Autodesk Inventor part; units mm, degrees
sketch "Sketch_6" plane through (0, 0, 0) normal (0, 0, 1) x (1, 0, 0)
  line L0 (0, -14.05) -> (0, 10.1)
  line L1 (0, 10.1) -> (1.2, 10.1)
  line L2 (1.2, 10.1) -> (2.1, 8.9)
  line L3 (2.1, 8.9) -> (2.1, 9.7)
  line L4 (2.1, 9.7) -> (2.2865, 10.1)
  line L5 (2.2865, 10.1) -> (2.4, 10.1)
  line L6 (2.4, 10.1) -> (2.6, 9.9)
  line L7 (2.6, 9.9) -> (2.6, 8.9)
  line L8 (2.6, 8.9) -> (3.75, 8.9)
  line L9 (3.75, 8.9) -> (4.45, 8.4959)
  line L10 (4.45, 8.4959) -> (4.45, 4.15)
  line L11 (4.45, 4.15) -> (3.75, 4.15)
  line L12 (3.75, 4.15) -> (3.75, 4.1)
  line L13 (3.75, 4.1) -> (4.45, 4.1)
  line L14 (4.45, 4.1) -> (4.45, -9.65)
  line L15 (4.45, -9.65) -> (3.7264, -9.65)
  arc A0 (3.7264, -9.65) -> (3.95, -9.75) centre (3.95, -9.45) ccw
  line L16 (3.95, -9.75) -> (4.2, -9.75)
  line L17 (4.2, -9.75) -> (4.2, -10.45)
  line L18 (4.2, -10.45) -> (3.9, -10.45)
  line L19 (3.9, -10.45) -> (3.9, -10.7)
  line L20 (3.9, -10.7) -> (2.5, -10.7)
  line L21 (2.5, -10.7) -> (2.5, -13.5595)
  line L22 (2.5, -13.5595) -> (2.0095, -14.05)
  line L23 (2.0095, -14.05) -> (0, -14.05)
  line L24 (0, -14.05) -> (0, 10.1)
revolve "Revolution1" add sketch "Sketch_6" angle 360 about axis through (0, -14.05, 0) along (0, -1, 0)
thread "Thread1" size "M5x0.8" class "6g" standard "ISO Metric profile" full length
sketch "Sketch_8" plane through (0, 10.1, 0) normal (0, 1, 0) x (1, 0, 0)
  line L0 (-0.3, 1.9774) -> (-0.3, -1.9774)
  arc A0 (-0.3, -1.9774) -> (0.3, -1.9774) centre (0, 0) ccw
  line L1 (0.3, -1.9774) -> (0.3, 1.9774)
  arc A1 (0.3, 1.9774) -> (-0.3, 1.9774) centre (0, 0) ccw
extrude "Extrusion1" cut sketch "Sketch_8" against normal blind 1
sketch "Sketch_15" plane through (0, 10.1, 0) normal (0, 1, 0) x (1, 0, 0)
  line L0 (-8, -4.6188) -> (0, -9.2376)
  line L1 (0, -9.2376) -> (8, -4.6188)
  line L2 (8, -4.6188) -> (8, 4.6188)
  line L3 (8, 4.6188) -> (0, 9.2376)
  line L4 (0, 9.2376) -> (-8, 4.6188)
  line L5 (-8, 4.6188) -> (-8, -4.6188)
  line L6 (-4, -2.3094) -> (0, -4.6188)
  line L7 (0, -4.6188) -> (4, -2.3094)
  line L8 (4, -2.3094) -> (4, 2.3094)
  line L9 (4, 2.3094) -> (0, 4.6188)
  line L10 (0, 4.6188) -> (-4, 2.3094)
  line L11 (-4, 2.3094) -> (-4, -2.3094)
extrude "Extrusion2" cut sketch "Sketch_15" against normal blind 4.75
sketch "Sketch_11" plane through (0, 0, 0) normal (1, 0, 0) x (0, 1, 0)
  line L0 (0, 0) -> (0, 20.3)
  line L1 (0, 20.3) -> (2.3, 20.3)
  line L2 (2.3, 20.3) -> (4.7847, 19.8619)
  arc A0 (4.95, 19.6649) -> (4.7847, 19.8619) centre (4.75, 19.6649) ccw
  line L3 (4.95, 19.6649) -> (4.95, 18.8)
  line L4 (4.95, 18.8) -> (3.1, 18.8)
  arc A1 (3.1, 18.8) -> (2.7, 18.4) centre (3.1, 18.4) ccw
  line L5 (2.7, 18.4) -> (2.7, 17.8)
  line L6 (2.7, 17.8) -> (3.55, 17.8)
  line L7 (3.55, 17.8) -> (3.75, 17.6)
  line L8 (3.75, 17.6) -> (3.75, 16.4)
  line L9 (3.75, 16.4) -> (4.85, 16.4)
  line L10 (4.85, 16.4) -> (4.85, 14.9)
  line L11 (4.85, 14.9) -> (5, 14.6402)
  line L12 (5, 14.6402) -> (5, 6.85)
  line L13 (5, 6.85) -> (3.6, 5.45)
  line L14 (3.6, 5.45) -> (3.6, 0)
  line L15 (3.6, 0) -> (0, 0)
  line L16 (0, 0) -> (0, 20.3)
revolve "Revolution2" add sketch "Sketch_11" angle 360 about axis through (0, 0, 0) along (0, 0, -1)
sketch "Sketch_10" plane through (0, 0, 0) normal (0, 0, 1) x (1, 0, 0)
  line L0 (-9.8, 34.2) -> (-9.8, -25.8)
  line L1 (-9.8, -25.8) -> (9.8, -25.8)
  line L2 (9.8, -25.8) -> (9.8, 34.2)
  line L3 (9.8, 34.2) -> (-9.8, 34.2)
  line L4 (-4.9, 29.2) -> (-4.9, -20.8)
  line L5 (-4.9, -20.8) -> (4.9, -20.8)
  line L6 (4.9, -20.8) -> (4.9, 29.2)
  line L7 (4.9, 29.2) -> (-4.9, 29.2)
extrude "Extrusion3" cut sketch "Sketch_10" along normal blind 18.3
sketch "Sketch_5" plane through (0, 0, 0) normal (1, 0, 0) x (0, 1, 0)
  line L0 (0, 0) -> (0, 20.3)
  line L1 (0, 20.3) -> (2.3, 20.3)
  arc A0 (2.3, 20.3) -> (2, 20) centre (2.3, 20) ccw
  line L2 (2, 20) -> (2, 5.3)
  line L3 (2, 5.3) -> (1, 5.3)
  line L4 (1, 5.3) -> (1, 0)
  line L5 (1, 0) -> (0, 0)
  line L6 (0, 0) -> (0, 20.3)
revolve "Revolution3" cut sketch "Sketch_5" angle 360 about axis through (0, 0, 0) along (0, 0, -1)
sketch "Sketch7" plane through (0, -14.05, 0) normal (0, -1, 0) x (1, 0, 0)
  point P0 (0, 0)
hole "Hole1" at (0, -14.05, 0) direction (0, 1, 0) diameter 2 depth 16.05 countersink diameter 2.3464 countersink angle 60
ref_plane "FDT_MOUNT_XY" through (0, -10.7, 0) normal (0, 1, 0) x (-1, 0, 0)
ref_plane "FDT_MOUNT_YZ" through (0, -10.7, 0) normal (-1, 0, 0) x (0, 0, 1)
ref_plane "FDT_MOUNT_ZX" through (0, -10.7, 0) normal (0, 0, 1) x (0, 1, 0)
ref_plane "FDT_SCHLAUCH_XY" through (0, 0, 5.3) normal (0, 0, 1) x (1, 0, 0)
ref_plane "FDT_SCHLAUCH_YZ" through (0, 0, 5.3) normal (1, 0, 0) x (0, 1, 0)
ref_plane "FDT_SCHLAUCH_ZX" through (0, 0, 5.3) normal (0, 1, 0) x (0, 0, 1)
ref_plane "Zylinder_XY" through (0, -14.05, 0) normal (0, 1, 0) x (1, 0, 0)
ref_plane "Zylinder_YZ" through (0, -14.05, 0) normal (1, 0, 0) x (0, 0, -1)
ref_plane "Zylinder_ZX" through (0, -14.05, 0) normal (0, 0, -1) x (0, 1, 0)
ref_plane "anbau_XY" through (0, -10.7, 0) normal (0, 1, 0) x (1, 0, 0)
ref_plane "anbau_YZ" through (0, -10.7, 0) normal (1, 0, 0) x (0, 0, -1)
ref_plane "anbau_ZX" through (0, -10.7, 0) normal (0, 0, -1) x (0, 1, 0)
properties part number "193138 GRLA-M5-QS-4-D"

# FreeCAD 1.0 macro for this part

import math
import FreeCAD as App
import Part
import Sketcher
from FreeCAD import Vector
Q = App.Units.Quantity

doc = App.newDocument("Part")
params = doc.addObject("Spreadsheet::Sheet", "Params")
for row, (alias, value) in enumerate([
    ("sketch1_radius", "0.3 mm"),
    ("sketch1_height", "1 mm"),
    ("sketch1_width", "1.4 mm"),
    ("sketch1_width2", "0.3 mm"),
    ("sketch1_width3", "0.7 mm"),
    ("revolution_angle", "360 deg"),
    ("sketch2_radius", "2 mm"),
    ("pocket1_length", "1 mm"),
    ("pocket2_length", "4.75 mm"),
    ("sketch4_radius", "0.4 mm"),
    ("sketch4_radius2", "0.2 mm"),
    ("sketch4_width", "3.6 mm"),
    ("sketch4_width2", "1.1 mm"),
    ("sketch4_width3", "2.3 mm"),
    ("revolution2_angle", "360 deg"),
    ("sketch5_height", "60 mm"),
    ("sketch5_height2", "50 mm"),
    ("sketch5_width", "19.6 mm"),
    ("sketch5_width2", "9.8 mm"),
    ("pocket3_length", "18.3 mm"),
    ("sketch6_radius", "0.3 mm"),
    ("sketch6_width", "1 mm"),
    ("sketch6_height", "20.3 mm"),
    ("sketch6_height2", "5.3 mm"),
    ("groove_angle", "360 deg"),
    ("sketch7_diameter", "2 mm"),
    ("hole_diameter", "2 mm"),
    ("hole_depth", "16.05 mm"),
    ("hole_csink_diameter", "2.3464 mm"),
], start=1):
    params.set(f"A{row}", alias)
    params.set(f"B{row}", "=" + value)
    params.setAlias(f"B{row}", alias)

body = doc.addObject("PartDesign::Body", "Body")

# Sketch on XY plane
sketch1 = doc.addObject("Sketcher::SketchObject", "Sketch")
body.addObject(sketch1)
sketch1.AttachmentSupport = (doc.XY_Plane, [""])
sketch1.MapMode = "FlatFace"
sketch1.addGeometry(Part.LineSegment(Vector(0, 10.1, 0), Vector(0, -14.05, 0)), False)
sketch1.addGeometry(Part.LineSegment(Vector(0, -14.05, 0), Vector(2.01, -14.05, 0)), False)
sketch1.addGeometry(Part.LineSegment(Vector(2.01, -14.05, 0), Vector(2.5, -13.56, 0)), False)
sketch1.addGeometry(Part.LineSegment(Vector(2.5, -13.56, 0), Vector(2.5, -10.7, 0)), False)
sketch1.addGeometry(Part.LineSegment(Vector(2.5, -10.7, 0), Vector(3.9, -10.7, 0)), False)
sketch1.addGeometry(Part.LineSegment(Vector(3.9, -10.7, 0), Vector(3.9, -10.45, 0)), False)
sketch1.addGeometry(Part.LineSegment(Vector(3.9, -10.45, 0), Vector(4.2, -10.45, 0)), False)
sketch1.addGeometry(Part.LineSegment(Vector(4.2, -10.45, 0), Vector(4.2, -9.75, 0)), False)
sketch1.addGeometry(Part.LineSegment(Vector(4.2, -9.75, 0), Vector(3.95, -9.75, 0)), False)
sketch1.addGeometry(Part.ArcOfCircle(Part.Circle(Vector(3.95, -9.45, 0), Vector(0, 0, 1), 0.3), math.radians(-138), math.radians(-90)), False)
sketch1.addGeometry(Part.LineSegment(Vector(3.73, -9.65, 0), Vector(4.45, -9.65, 0)), False)
sketch1.addGeometry(Part.LineSegment(Vector(4.45, -9.65, 0), Vector(4.45, 4.1, 0)), False)
sketch1.addGeometry(Part.LineSegment(Vector(4.45, 4.1, 0), Vector(3.75, 4.1, 0)), False)
sketch1.addGeometry(Part.LineSegment(Vector(3.75, 4.1, 0), Vector(3.75, 4.15, 0)), False)
sketch1.addGeometry(Part.LineSegment(Vector(3.75, 4.15, 0), Vector(4.45, 4.15, 0)), False)
sketch1.addGeometry(Part.LineSegment(Vector(4.45, 4.15, 0), Vector(4.45, 8.5, 0)), False)
sketch1.addGeometry(Part.LineSegment(Vector(4.45, 8.5, 0), Vector(3.75, 8.9, 0)), False)
sketch1.addGeometry(Part.LineSegment(Vector(3.75, 8.9, 0), Vector(2.6, 8.9, 0)), False)
sketch1.addGeometry(Part.LineSegment(Vector(2.6, 8.9, 0), Vector(2.6, 9.9, 0)), False)
sketch1.addGeometry(Part.LineSegment(Vector(2.6, 9.9, 0), Vector(2.4, 10.1, 0)), False)
sketch1.addGeometry(Part.LineSegment(Vector(2.4, 10.1, 0), Vector(2.29, 10.1, 0)), False)
sketch1.addGeometry(Part.LineSegment(Vector(2.29, 10.1, 0), Vector(2.1, 9.7, 0)), False)
sketch1.addGeometry(Part.LineSegment(Vector(2.1, 9.7, 0), Vector(2.1, 8.9, 0)), False)
sketch1.addGeometry(Part.LineSegment(Vector(2.1, 8.9, 0), Vector(1.2, 10.1, 0)), False)
sketch1.addGeometry(Part.LineSegment(Vector(1.2, 10.1, 0), Vector(0, 10.1, 0)), False)
sketch1.addConstraint(Sketcher.Constraint("Coincident", 0, 2, 1, 1))
sketch1.addConstraint(Sketcher.Constraint("Coincident", 1, 2, 2, 1))
sketch1.addConstraint(Sketcher.Constraint("Coincident", 2, 2, 3, 1))
sketch1.addConstraint(Sketcher.Constraint("Coincident", 3, 2, 4, 1))
sketch1.addConstraint(Sketcher.Constraint("Coincident", 4, 2, 5, 1))
sketch1.addConstraint(Sketcher.Constraint("Coincident", 5, 2, 6, 1))
sketch1.addConstraint(Sketcher.Constraint("Coincident", 6, 2, 7, 1))
sketch1.addConstraint(Sketcher.Constraint("Coincident", 7, 2, 8, 1))
sketch1.addConstraint(Sketcher.Constraint("Tangent", 8, 2, 9, 2))
sketch1.addConstraint(Sketcher.Constraint("Coincident", 9, 1, 10, 1))
sketch1.addConstraint(Sketcher.Constraint("Coincident", 10, 2, 11, 1))
sketch1.addConstraint(Sketcher.Constraint("Coincident", 11, 2, 12, 1))
sketch1.addConstraint(Sketcher.Constraint("Coincident", 12, 2, 13, 1))
sketch1.addConstraint(Sketcher.Constraint("Coincident", 13, 2, 14, 1))
sketch1.addConstraint(Sketcher.Constraint("Coincident", 14, 2, 15, 1))
sketch1.addConstraint(Sketcher.Constraint("Coincident", 15, 2, 16, 1))
sketch1.addConstraint(Sketcher.Constraint("Coincident", 16, 2, 17, 1))
sketch1.addConstraint(Sketcher.Constraint("Coincident", 17, 2, 18, 1))
sketch1.addConstraint(Sketcher.Constraint("Coincident", 18, 2, 19, 1))
sketch1.addConstraint(Sketcher.Constraint("Coincident", 19, 2, 20, 1))
sketch1.addConstraint(Sketcher.Constraint("Coincident", 20, 2, 21, 1))
sketch1.addConstraint(Sketcher.Constraint("Coincident", 21, 2, 22, 1))
sketch1.addConstraint(Sketcher.Constraint("Coincident", 22, 2, 23, 1))
sketch1.addConstraint(Sketcher.Constraint("Coincident", 23, 2, 24, 1))
sketch1.addConstraint(Sketcher.Constraint("Coincident", 24, 2, 0, 1))
sketch1.addConstraint(Sketcher.Constraint("Vertical", 0))
sketch1.addConstraint(Sketcher.Constraint("Horizontal", 1))
sketch1.addConstraint(Sketcher.Constraint("Vertical", 3))
sketch1.addConstraint(Sketcher.Constraint("Horizontal", 4))
sketch1.addConstraint(Sketcher.Constraint("Vertical", 5))
sketch1.addConstraint(Sketcher.Constraint("Horizontal", 6))
sketch1.addConstraint(Sketcher.Constraint("Vertical", 7))
sketch1.addConstraint(Sketcher.Constraint("Horizontal", 8))
sketch1.addConstraint(Sketcher.Constraint("Horizontal", 10))
sketch1.addConstraint(Sketcher.Constraint("Vertical", 11))
sketch1.addConstraint(Sketcher.Constraint("Horizontal", 12))
sketch1.addConstraint(Sketcher.Constraint("Vertical", 13))
sketch1.addConstraint(Sketcher.Constraint("Horizontal", 14))
sketch1.addConstraint(Sketcher.Constraint("Vertical", 15))
sketch1.addConstraint(Sketcher.Constraint("Horizontal", 17))
sketch1.addConstraint(Sketcher.Constraint("Vertical", 18))
sketch1.addConstraint(Sketcher.Constraint("Horizontal", 20))
sketch1.addConstraint(Sketcher.Constraint("Vertical", 22))
sketch1.addConstraint(Sketcher.Constraint("Horizontal", 24))
sketch1.addConstraint(Sketcher.Constraint("PointOnObject", 0, 2, -2))
sketch1.addConstraint(Sketcher.Constraint("Perpendicular", 2, 19))
sketch1.addConstraint(Sketcher.Constraint("Horizontal", 17, 2, 22, 2))
sketch1.addConstraint(Sketcher.Constraint("Horizontal", 20, 2, 23, 2))
sketch1.addConstraint(Sketcher.Constraint("Vertical", 11, 2, 14, 2))
sketch1.addConstraint(Sketcher.Constraint("Vertical", 13, 2, 16, 2))
sketch1.addConstraint(Sketcher.Constraint("Equal", 8, 5))
sketch1.addConstraint(Sketcher.Constraint("Equal", 14, 7))
sketch1.addConstraint(Sketcher.Constraint("Radius", 9, 0.3))
sketch1.addConstraint(Sketcher.Constraint("DistanceY", 18, 1, 18, 2, 1.0))
sketch1.addConstraint(Sketcher.Constraint("Angle", 2, Q("45 deg")))
sketch1.addConstraint(Sketcher.Constraint("DistanceX", 4, 1, 4, 2, 1.4))
sketch1.addConstraint(Sketcher.Constraint("DistanceX", 6, 1, 6, 2, 0.3))
sketch1.addConstraint(Sketcher.Constraint("DistanceX", 12, 2, 12, 1, 0.7))
sketch1.addConstraint(Sketcher.Constraint("DistanceX", 24, 2, 24, 1, 1.2))
sketch1.addConstraint(Sketcher.Constraint("DistanceY", 22, 2, 22, 1, 0.8))
sketch1.addConstraint(Sketcher.Constraint("Distance", 23, 1.5))
sketch1.addConstraint(Sketcher.Constraint("DistanceX", 8, 2, 8, 1, 0.25))
sketch1.addConstraint(Sketcher.Constraint("DistanceX", 17, 2, 17, 1, 1.15))
sketch1.addConstraint(Sketcher.Constraint("DistanceY", 0, 2, 0, 1, 24.15))
sketch1.addConstraint(Sketcher.Constraint("DistanceY", 11, 1, 11, 2, 13.75))
sketch1.addConstraint(Sketcher.Constraint("DistanceY", 13, 1, 13, 2, 0.05))
sketch1.addConstraint(Sketcher.Constraint("DistanceX", -1, 1, 2, 2, 2.5))
sketch1.addConstraint(Sketcher.Constraint("DistanceY", 3, 2, -1, 1, 10.7))
sketch1.addConstraint(Sketcher.Constraint("DistanceY", -1, 1, 11, 2, 4.1))
sketch1.addConstraint(Sketcher.Constraint("DistanceY", -1, 1, 16, 2, 8.9))
sketch1.addConstraint(Sketcher.Constraint("DistanceX", -1, 1, 17, 2, 2.6))
sketch1.addConstraint(Sketcher.Constraint("DistanceX", -1, 1, 19, 2, 2.4))
sketch1.addConstraint(Sketcher.Constraint("DistanceY", 15, 1, 15, 2, 4.346))
sketch1.addConstraint(Sketcher.Constraint("DistanceX", 1, 1, 1, 2, 2.0095))
sketch1.addConstraint(Sketcher.Constraint("DistanceX", 20, 2, 20, 1, 0.1135))
sketch1.setExpression("Constraints[52]", "Params.sketch1_radius")
sketch1.setExpression("Constraints[53]", "Params.sketch1_height")
sketch1.setExpression("Constraints[55]", "Params.sketch1_width")
sketch1.setExpression("Constraints[56]", "Params.sketch1_width2")
sketch1.setExpression("Constraints[57]", "Params.sketch1_width3")
revolution = doc.addObject("PartDesign::Revolution", "Revolution")
body.addObject(revolution)
revolution.Profile = sketch1
revolution.ReferenceAxis = (sketch1, ["V_Axis"])
revolution.setExpression("Angle", "Params.revolution_angle")

# Sketch on XZ plane
sketch2 = doc.addObject("Sketcher::SketchObject", "Sketch001")
body.addObject(sketch2)
sketch2.AttachmentSupport = (doc.XZ_Plane, [""])
sketch2.MapMode = "FlatFace"
sketch2.AttachmentOffset = App.Placement(Vector(0, 0, -10.1), App.Rotation())
sketch2.addGeometry(Part.ArcOfCircle(Part.Circle(Vector(0, 0, 0), Vector(0, 0, 1), 2), math.radians(-98.63), math.radians(-81.37)), False)
sketch2.addGeometry(Part.LineSegment(Vector(-0.3, -2, 0), Vector(-0.3, 2, 0)), False)
sketch2.addGeometry(Part.ArcOfCircle(Part.Circle(Vector(0, 0, 0), Vector(0, 0, 1), 2), math.radians(81.37), math.radians(98.63)), False)
sketch2.addGeometry(Part.LineSegment(Vector(0.3, 2, 0), Vector(0.3, -2, 0)), False)
sketch2.addConstraint(Sketcher.Constraint("Coincident", 0, 1, 1, 1))
sketch2.addConstraint(Sketcher.Constraint("Coincident", 1, 2, 2, 2))
sketch2.addConstraint(Sketcher.Constraint("Coincident", 2, 1, 3, 1))
sketch2.addConstraint(Sketcher.Constraint("Coincident", 3, 2, 0, 2))
sketch2.addConstraint(Sketcher.Constraint("Vertical", 1))
sketch2.addConstraint(Sketcher.Constraint("Vertical", 3))
sketch2.addConstraint(Sketcher.Constraint("Coincident", 0, 3, -1, 1))
sketch2.addConstraint(Sketcher.Constraint("Coincident", 2, 3, -1, 1))
sketch2.addConstraint(Sketcher.Constraint("Equal", 0, 2))
sketch2.addConstraint(Sketcher.Constraint("Horizontal", 1, 2, 2, 1))
sketch2.addConstraint(Sketcher.Constraint("Radius", 0, 2.0))
sketch2.addConstraint(Sketcher.Constraint("DistanceX", 0, 1, -1, 1, 0.3))
sketch2.setExpression("Constraints[10]", "Params.sketch2_radius")
pocket1 = doc.addObject("PartDesign::Pocket", "Pocket")
body.addObject(pocket1)
pocket1.Profile = sketch2
pocket1.setExpression("Length", "Params.pocket1_length")
pocket1.Reversed = True

# Sketch on XZ plane
sketch3 = doc.addObject("Sketcher::SketchObject", "Sketch002")
body.addObject(sketch3)
sketch3.AttachmentSupport = (doc.XZ_Plane, [""])
sketch3.MapMode = "FlatFace"
sketch3.AttachmentOffset = App.Placement(Vector(0, 0, -10.1), App.Rotation())
sketch3.addGeometry(Part.LineSegment(Vector(-8, -4.6, 0), Vector(-8, 4.6, 0)), False)
sketch3.addGeometry(Part.LineSegment(Vector(-8, 4.6, 0), Vector(0, 9.2, 0)), False)
sketch3.addGeometry(Part.LineSegment(Vector(0, 9.2, 0), Vector(8, 4.6, 0)), False)
sketch3.addGeometry(Part.LineSegment(Vector(8, 4.6, 0), Vector(8, -4.6, 0)), False)
sketch3.addGeometry(Part.LineSegment(Vector(8, -4.6, 0), Vector(0, -9.2, 0)), False)
sketch3.addGeometry(Part.LineSegment(Vector(0, -9.2, 0), Vector(-8, -4.6, 0)), False)
sketch3.addGeometry(Part.LineSegment(Vector(0, 4.6, 0), Vector(-4, 2.3, 0)), False)
sketch3.addGeometry(Part.LineSegment(Vector(-4, 2.3, 0), Vector(-4, -2.3, 0)), False)
sketch3.addGeometry(Part.LineSegment(Vector(-4, -2.3, 0), Vector(0, -4.6, 0)), False)
sketch3.addGeometry(Part.LineSegment(Vector(0, -4.6, 0), Vector(4, -2.3, 0)), False)
sketch3.addGeometry(Part.LineSegment(Vector(4, -2.3, 0), Vector(4, 2.3, 0)), False)
sketch3.addGeometry(Part.LineSegment(Vector(4, 2.3, 0), Vector(0, 4.6, 0)), False)
sketch3.addConstraint(Sketcher.Constraint("Coincident", 0, 2, 1, 1))
sketch3.addConstraint(Sketcher.Constraint("Coincident", 1, 2, 2, 1))
sketch3.addConstraint(Sketcher.Constraint("Coincident", 2, 2, 3, 1))
sketch3.addConstraint(Sketcher.Constraint("Coincident", 3, 2, 4, 1))
sketch3.addConstraint(Sketcher.Constraint("Coincident", 4, 2, 5, 1))
sketch3.addConstraint(Sketcher.Constraint("Coincident", 5, 2, 0, 1))
sketch3.addConstraint(Sketcher.Constraint("Coincident", 6, 2, 7, 1))
sketch3.addConstraint(Sketcher.Constraint("Coincident", 7, 2, 8, 1))
sketch3.addConstraint(Sketcher.Constraint("Coincident", 8, 2, 9, 1))
sketch3.addConstraint(Sketcher.Constraint("Coincident", 9, 2, 10, 1))
sketch3.addConstraint(Sketcher.Constraint("Coincident", 10, 2, 11, 1))
sketch3.addConstraint(Sketcher.Constraint("Coincident", 11, 2, 6, 1))
sketch3.addConstraint(Sketcher.Constraint("Vertical", 0))
sketch3.addConstraint(Sketcher.Constraint("Vertical", 3))
sketch3.addConstraint(Sketcher.Constraint("Vertical", 7))
sketch3.addConstraint(Sketcher.Constraint("Vertical", 10))
sketch3.addConstraint(Sketcher.Constraint("Symmetric", 0, 2, 3, 2, -1, 1))
sketch3.addConstraint(Sketcher.Constraint("Symmetric", 1, 2, 4, 2, -1, 1))
sketch3.addConstraint(Sketcher.Constraint("Symmetric", 6, 2, 9, 2, -1, 1))
sketch3.addConstraint(Sketcher.Constraint("Symmetric", 8, 2, 11, 2, -1, 1))
sketch3.addConstraint(Sketcher.Constraint("PointOnObject", 1, 2, -2))
sketch3.addConstraint(Sketcher.Constraint("PointOnObject", 8, 2, -2))
sketch3.addConstraint(Sketcher.Constraint("Parallel", 2, 5))
sketch3.addConstraint(Sketcher.Constraint("Parallel", 4, 6))
sketch3.addConstraint(Sketcher.Constraint("Parallel", 5, 8))
sketch3.addConstraint(Sketcher.Constraint("Parallel", 8, 11))
sketch3.addConstraint(Sketcher.Constraint("Horizontal", 0, 2, 2, 2))
sketch3.addConstraint(Sketcher.Constraint("Horizontal", 5, 2, 8, 2))
sketch3.addConstraint(Sketcher.Constraint("Angle", 1, Q("30 deg")))
sketch3.addConstraint(Sketcher.Constraint("DistanceX", 0, 2, -1, 1, 8.0))
sketch3.addConstraint(Sketcher.Constraint("DistanceX", 6, 2, -1, 1, 4.0))
sketch3.addConstraint(Sketcher.Constraint("DistanceY", 0, 1, 0, 2, 9.2376))
pocket2 = doc.addObject("PartDesign::Pocket", "Pocket001")
body.addObject(pocket2)
pocket2.Profile = sketch3
pocket2.setExpression("Length", "Params.pocket2_length")
pocket2.Reversed = True

# Sketch on YZ plane
sketch4 = doc.addObject("Sketcher::SketchObject", "Sketch003")
body.addObject(sketch4)
sketch4.AttachmentSupport = (doc.YZ_Plane, [""])
sketch4.MapMode = "FlatFace"
sketch4.addGeometry(Part.LineSegment(Vector(0, 20.3, 0), Vector(0, 0, 0)), False)
sketch4.addGeometry(Part.LineSegment(Vector(0, 0, 0), Vector(3.6, 0, 0)), False)
sketch4.addGeometry(Part.LineSegment(Vector(3.6, 0, 0), Vector(3.6, 5.45, 0)), False)
sketch4.addGeometry(Part.LineSegment(Vector(3.6, 5.45, 0), Vector(5, 6.85, 0)), False)
sketch4.addGeometry(Part.LineSegment(Vector(5, 6.85, 0), Vector(5, 14.64, 0)), False)
sketch4.addGeometry(Part.LineSegment(Vector(5, 14.64, 0), Vector(4.85, 14.9, 0)), False)
sketch4.addGeometry(Part.LineSegment(Vector(4.85, 14.9, 0), Vector(4.85, 16.4, 0)), False)
sketch4.addGeometry(Part.LineSegment(Vector(4.85, 16.4, 0), Vector(3.75, 16.4, 0)), False)
sketch4.addGeometry(Part.LineSegment(Vector(3.75, 16.4, 0), Vector(3.75, 17.6, 0)), False)
sketch4.addGeometry(Part.LineSegment(Vector(3.75, 17.6, 0), Vector(3.55, 17.8, 0)), False)
sketch4.addGeometry(Part.LineSegment(Vector(3.55, 17.8, 0), Vector(2.7, 17.8, 0)), False)
sketch4.addGeometry(Part.LineSegment(Vector(2.7, 17.8, 0), Vector(2.7, 18.4, 0)), False)
sketch4.addGeometry(Part.ArcOfCircle(Part.Circle(Vector(3.1, 18.4, 0), Vector(0, 0, 1), 0.4), math.radians(90), math.radians(180)), False)
sketch4.addGeometry(Part.LineSegment(Vector(3.1, 18.8, 0), Vector(4.95, 18.8, 0)), False)
sketch4.addGeometry(Part.LineSegment(Vector(4.95, 18.8, 0), Vector(4.95, 19.66, 0)), False)
sketch4.addGeometry(Part.ArcOfCircle(Part.Circle(Vector(4.75, 19.66, 0), Vector(0, 0, 1), 0.2), math.radians(0), math.radians(80)), False)
sketch4.addGeometry(Part.LineSegment(Vector(4.78, 19.86, 0), Vector(2.3, 20.3, 0)), False)
sketch4.addGeometry(Part.LineSegment(Vector(2.3, 20.3, 0), Vector(0, 20.3, 0)), False)
sketch4.addConstraint(Sketcher.Constraint("Coincident", 0, 2, 1, 1))
sketch4.addConstraint(Sketcher.Constraint("Coincident", 1, 2, 2, 1))
sketch4.addConstraint(Sketcher.Constraint("Coincident", 2, 2, 3, 1))
sketch4.addConstraint(Sketcher.Constraint("Coincident", 3, 2, 4, 1))
sketch4.addConstraint(Sketcher.Constraint("Coincident", 4, 2, 5, 1))
sketch4.addConstraint(Sketcher.Constraint("Coincident", 5, 2, 6, 1))
sketch4.addConstraint(Sketcher.Constraint("Coincident", 6, 2, 7, 1))
sketch4.addConstraint(Sketcher.Constraint("Coincident", 7, 2, 8, 1))
sketch4.addConstraint(Sketcher.Constraint("Coincident", 8, 2, 9, 1))
sketch4.addConstraint(Sketcher.Constraint("Coincident", 9, 2, 10, 1))
sketch4.addConstraint(Sketcher.Constraint("Coincident", 10, 2, 11, 1))
sketch4.addConstraint(Sketcher.Constraint("Tangent", 11, 2, 12, 2))
sketch4.addConstraint(Sketcher.Constraint("Tangent", 12, 1, 13, 1))
sketch4.addConstraint(Sketcher.Constraint("Coincident", 13, 2, 14, 1))
sketch4.addConstraint(Sketcher.Constraint("Tangent", 14, 2, 15, 1))
sketch4.addConstraint(Sketcher.Constraint("Tangent", 15, 2, 16, 1))
sketch4.addConstraint(Sketcher.Constraint("Coincident", 16, 2, 17, 1))
sketch4.addConstraint(Sketcher.Constraint("Coincident", 17, 2, 0, 1))
sketch4.addConstraint(Sketcher.Constraint("Vertical", 0))
sketch4.addConstraint(Sketcher.Constraint("Horizontal", 1))
sketch4.addConstraint(Sketcher.Constraint("Vertical", 2))
sketch4.addConstraint(Sketcher.Constraint("Vertical", 4))
sketch4.addConstraint(Sketcher.Constraint("Vertical", 6))
sketch4.addConstraint(Sketcher.Constraint("Horizontal", 7))
sketch4.addConstraint(Sketcher.Constraint("Vertical", 8))
sketch4.addConstraint(Sketcher.Constraint("Horizontal", 10))
sketch4.addConstraint(Sketcher.Constraint("Vertical", 11))
sketch4.addConstraint(Sketcher.Constraint("Horizontal", 13))
sketch4.addConstraint(Sketcher.Constraint("Vertical", 14))
sketch4.addConstraint(Sketcher.Constraint("Horizontal", 17))
sketch4.addConstraint(Sketcher.Constraint("Coincident", 0, 2, -1, 1))
sketch4.addConstraint(Sketcher.Constraint("Perpendicular", 3, 9))
sketch4.addConstraint(Sketcher.Constraint("Radius", 12, 0.4))
sketch4.addConstraint(Sketcher.Constraint("Radius", 15, 0.2))
sketch4.addConstraint(Sketcher.Constraint("Angle", 3, Q("45 deg")))
sketch4.addConstraint(Sketcher.Constraint("Angle", 5, Q("120.0007 deg")))
sketch4.addConstraint(Sketcher.Constraint("Angle", 16, Q("170.0004 deg")))
sketch4.addConstraint(Sketcher.Constraint("DistanceX", 1, 1, 1, 2, 3.6))
sketch4.addConstraint(Sketcher.Constraint("DistanceX", 7, 2, 7, 1, 1.1))
sketch4.addConstraint(Sketcher.Constraint("DistanceX", 17, 2, 17, 1, 2.3))
sketch4.addConstraint(Sketcher.Constraint("DistanceY", 0, 2, 0, 1, 20.3))
sketch4.addConstraint(Sketcher.Constraint("DistanceY", 6, 1, 6, 2, 1.5))
sketch4.addConstraint(Sketcher.Constraint("DistanceY", 8, 1, 8, 2, 1.2))
sketch4.addConstraint(Sketcher.Constraint("DistanceY", 11, 1, 11, 2, 0.6))
sketch4.addConstraint(Sketcher.Constraint("DistanceX", -1, 1, 3, 2, 5.0))
sketch4.addConstraint(Sketcher.Constraint("DistanceY", 6, 2, 12, 3, 2.0))
sketch4.addConstraint(Sketcher.Constraint("DistanceX", 7, 2, 15, 3, 1.0))
sketch4.addConstraint(Sketcher.Constraint("Distance", 5, 0.3))
sketch4.addConstraint(Sketcher.Constraint("DistanceX", 10, 2, 10, 1, 0.85))
sketch4.addConstraint(Sketcher.Constraint("DistanceY", 2, 1, 2, 2, 5.45))
sketch4.addConstraint(Sketcher.Constraint("DistanceY", -1, 1, 12, 3, 18.4))
sketch4.setExpression("Constraints[32]", "Params.sketch4_radius")
sketch4.setExpression("Constraints[33]", "Params.sketch4_radius2")
sketch4.setExpression("Constraints[37]", "Params.sketch4_width")
sketch4.setExpression("Constraints[38]", "Params.sketch4_width2")
sketch4.setExpression("Constraints[39]", "Params.sketch4_width3")
revolution2 = doc.addObject("PartDesign::Revolution", "Revolution001")
body.addObject(revolution2)
revolution2.Profile = sketch4
revolution2.ReferenceAxis = (sketch4, ["V_Axis"])
revolution2.setExpression("Angle", "Params.revolution2_angle")

# Sketch on XY plane
sketch5 = doc.addObject("Sketcher::SketchObject", "Sketch004")
body.addObject(sketch5)
sketch5.AttachmentSupport = (doc.XY_Plane, [""])
sketch5.MapMode = "FlatFace"
sketch5.addGeometry(Part.LineSegment(Vector(10, 34, 0), Vector(-10, 34, 0)), False)
sketch5.addGeometry(Part.LineSegment(Vector(-10, 34, 0), Vector(-10, -26, 0)), False)
sketch5.addGeometry(Part.LineSegment(Vector(-10, -26, 0), Vector(10, -26, 0)), False)
sketch5.addGeometry(Part.LineSegment(Vector(10, -26, 0), Vector(10, 34, 0)), False)
sketch5.addGeometry(Part.LineSegment(Vector(-5, -21, 0), Vector(-5, 29, 0)), False)
sketch5.addGeometry(Part.LineSegment(Vector(-5, 29, 0), Vector(5, 29, 0)), False)
sketch5.addGeometry(Part.LineSegment(Vector(5, 29, 0), Vector(5, -21, 0)), False)
sketch5.addGeometry(Part.LineSegment(Vector(5, -21, 0), Vector(-5, -21, 0)), False)
sketch5.addConstraint(Sketcher.Constraint("Coincident", 0, 2, 1, 1))
sketch5.addConstraint(Sketcher.Constraint("Coincident", 1, 2, 2, 1))
sketch5.addConstraint(Sketcher.Constraint("Coincident", 2, 2, 3, 1))
sketch5.addConstraint(Sketcher.Constraint("Coincident", 3, 2, 0, 1))
sketch5.addConstraint(Sketcher.Constraint("Coincident", 4, 2, 5, 1))
sketch5.addConstraint(Sketcher.Constraint("Coincident", 5, 2, 6, 1))
sketch5.addConstraint(Sketcher.Constraint("Coincident", 6, 2, 7, 1))
sketch5.addConstraint(Sketcher.Constraint("Coincident", 7, 2, 4, 1))
sketch5.addConstraint(Sketcher.Constraint("Horizontal", 0))
sketch5.addConstraint(Sketcher.Constraint("Vertical", 1))
sketch5.addConstraint(Sketcher.Constraint("Horizontal", 2))
sketch5.addConstraint(Sketcher.Constraint("Vertical", 3))
sketch5.addConstraint(Sketcher.Constraint("Vertical", 4))
sketch5.addConstraint(Sketcher.Constraint("Horizontal", 5))
sketch5.addConstraint(Sketcher.Constraint("Vertical", 6))
sketch5.addConstraint(Sketcher.Constraint("Horizontal", 7))
sketch5.addConstraint(Sketcher.Constraint("DistanceY", 1, 2, 1, 1, 60.0))
sketch5.addConstraint(Sketcher.Constraint("DistanceY", 4, 1, 4, 2, 50.0))
sketch5.addConstraint(Sketcher.Constraint("DistanceX", 0, 2, 0, 1, 19.6))
sketch5.addConstraint(Sketcher.Constraint("DistanceX", 5, 1, 5, 2, 9.8))
sketch5.addConstraint(Sketcher.Constraint("DistanceY", 4, 2, 0, 2, 5.0))
sketch5.addConstraint(Sketcher.Constraint("DistanceX", 0, 2, -1, 1, 9.8))
sketch5.addConstraint(Sketcher.Constraint("DistanceY", -1, 1, 0, 2, 34.2))
sketch5.addConstraint(Sketcher.Constraint("DistanceX", 4, 2, -1, 1, 4.9))
sketch5.setExpression("Constraints[16]", "Params.sketch5_height")
sketch5.setExpression("Constraints[17]", "Params.sketch5_height2")
sketch5.setExpression("Constraints[18]", "Params.sketch5_width")
sketch5.setExpression("Constraints[19]", "Params.sketch5_width2")
pocket3 = doc.addObject("PartDesign::Pocket", "Pocket002")
body.addObject(pocket3)
pocket3.Profile = sketch5
pocket3.setExpression("Length", "Params.pocket3_length")
pocket3.Reversed = True

# Sketch on YZ plane
sketch6 = doc.addObject("Sketcher::SketchObject", "Sketch005")
body.addObject(sketch6)
sketch6.AttachmentSupport = (doc.YZ_Plane, [""])
sketch6.MapMode = "FlatFace"
sketch6.addGeometry(Part.LineSegment(Vector(0, 20.3, 0), Vector(0, 0, 0)), False)
sketch6.addGeometry(Part.LineSegment(Vector(0, 0, 0), Vector(1, 0, 0)), False)
sketch6.addGeometry(Part.LineSegment(Vector(1, 0, 0), Vector(1, 5.3, 0)), False)
sketch6.addGeometry(Part.LineSegment(Vector(1, 5.3, 0), Vector(2, 5.3, 0)), False)
sketch6.addGeometry(Part.LineSegment(Vector(2, 5.3, 0), Vector(2, 20, 0)), False)
sketch6.addGeometry(Part.ArcOfCircle(Part.Circle(Vector(2.3, 20, 0), Vector(0, 0, 1), 0.3), math.radians(90), math.radians(180)), False)
sketch6.addGeometry(Part.LineSegment(Vector(2.3, 20.3, 0), Vector(0, 20.3, 0)), False)
sketch6.addConstraint(Sketcher.Constraint("Coincident", 0, 2, 1, 1))
sketch6.addConstraint(Sketcher.Constraint("Coincident", 1, 2, 2, 1))
sketch6.addConstraint(Sketcher.Constraint("Coincident", 2, 2, 3, 1))
sketch6.addConstraint(Sketcher.Constraint("Coincident", 3, 2, 4, 1))
sketch6.addConstraint(Sketcher.Constraint("Tangent", 4, 2, 5, 2))
sketch6.addConstraint(Sketcher.Constraint("Tangent", 5, 1, 6, 1))
sketch6.addConstraint(Sketcher.Constraint("Coincident", 6, 2, 0, 1))
sketch6.addConstraint(Sketcher.Constraint("Vertical", 0))
sketch6.addConstraint(Sketcher.Constraint("Horizontal", 1))
sketch6.addConstraint(Sketcher.Constraint("Vertical", 2))
sketch6.addConstraint(Sketcher.Constraint("Horizontal", 3))
sketch6.addConstraint(Sketcher.Constraint("Vertical", 4))
sketch6.addConstraint(Sketcher.Constraint("Horizontal", 6))
sketch6.addConstraint(Sketcher.Constraint("Coincident", 0, 2, -1, 1))
sketch6.addConstraint(Sketcher.Constraint("Equal", 1, 3))
sketch6.addConstraint(Sketcher.Constraint("Radius", 5, 0.3))
sketch6.addConstraint(Sketcher.Constraint("DistanceX", 1, 1, 1, 2, 1.0))
sketch6.addConstraint(Sketcher.Constraint("DistanceY", 0, 2, 0, 1, 20.3))
sketch6.addConstraint(Sketcher.Constraint("DistanceY", 2, 1, 2, 2, 5.3))
sketch6.setExpression("Constraints[15]", "Params.sketch6_radius")
sketch6.setExpression("Constraints[16]", "Params.sketch6_width")
sketch6.setExpression("Constraints[17]", "Params.sketch6_height")
sketch6.setExpression("Constraints[18]", "Params.sketch6_height2")
groove = doc.addObject("PartDesign::Groove", "Groove")
body.addObject(groove)
groove.Profile = sketch6
groove.ReferenceAxis = (sketch6, ["V_Axis"])
groove.setExpression("Angle", "Params.groove_angle")

# Sketch on XZ plane
sketch7 = doc.addObject("Sketcher::SketchObject", "Sketch006")
body.addObject(sketch7)
sketch7.AttachmentSupport = (doc.XZ_Plane, [""])
sketch7.MapMode = "FlatFace"
sketch7.AttachmentOffset = App.Placement(Vector(0, 0, 14.05), App.Rotation())
sketch7.addGeometry(Part.Circle(Vector(0, 0, 0), Vector(0, 0, 1), 1), False)
sketch7.addConstraint(Sketcher.Constraint("Coincident", 0, 3, -1, 1))
sketch7.addConstraint(Sketcher.Constraint("Diameter", 0, 2.0))
sketch7.setExpression("Constraints[1]", "Params.sketch7_diameter")
doc.recompute()
hole = doc.addObject("PartDesign::Hole", "Hole")
body.addObject(hole)
hole.Profile = sketch7
hole.ThreadType = "None"
hole.setExpression("Diameter", "Params.hole_diameter")
hole.DepthType = "Dimension"
hole.setExpression("Depth", "Params.hole_depth")
hole.DrillPoint = "Flat"
hole.HoleCutType = "Countersink"
hole.setExpression("HoleCutDiameter", "Params.hole_csink_diameter")
hole.HoleCutCountersinkAngle = 60

doc.recompute()
